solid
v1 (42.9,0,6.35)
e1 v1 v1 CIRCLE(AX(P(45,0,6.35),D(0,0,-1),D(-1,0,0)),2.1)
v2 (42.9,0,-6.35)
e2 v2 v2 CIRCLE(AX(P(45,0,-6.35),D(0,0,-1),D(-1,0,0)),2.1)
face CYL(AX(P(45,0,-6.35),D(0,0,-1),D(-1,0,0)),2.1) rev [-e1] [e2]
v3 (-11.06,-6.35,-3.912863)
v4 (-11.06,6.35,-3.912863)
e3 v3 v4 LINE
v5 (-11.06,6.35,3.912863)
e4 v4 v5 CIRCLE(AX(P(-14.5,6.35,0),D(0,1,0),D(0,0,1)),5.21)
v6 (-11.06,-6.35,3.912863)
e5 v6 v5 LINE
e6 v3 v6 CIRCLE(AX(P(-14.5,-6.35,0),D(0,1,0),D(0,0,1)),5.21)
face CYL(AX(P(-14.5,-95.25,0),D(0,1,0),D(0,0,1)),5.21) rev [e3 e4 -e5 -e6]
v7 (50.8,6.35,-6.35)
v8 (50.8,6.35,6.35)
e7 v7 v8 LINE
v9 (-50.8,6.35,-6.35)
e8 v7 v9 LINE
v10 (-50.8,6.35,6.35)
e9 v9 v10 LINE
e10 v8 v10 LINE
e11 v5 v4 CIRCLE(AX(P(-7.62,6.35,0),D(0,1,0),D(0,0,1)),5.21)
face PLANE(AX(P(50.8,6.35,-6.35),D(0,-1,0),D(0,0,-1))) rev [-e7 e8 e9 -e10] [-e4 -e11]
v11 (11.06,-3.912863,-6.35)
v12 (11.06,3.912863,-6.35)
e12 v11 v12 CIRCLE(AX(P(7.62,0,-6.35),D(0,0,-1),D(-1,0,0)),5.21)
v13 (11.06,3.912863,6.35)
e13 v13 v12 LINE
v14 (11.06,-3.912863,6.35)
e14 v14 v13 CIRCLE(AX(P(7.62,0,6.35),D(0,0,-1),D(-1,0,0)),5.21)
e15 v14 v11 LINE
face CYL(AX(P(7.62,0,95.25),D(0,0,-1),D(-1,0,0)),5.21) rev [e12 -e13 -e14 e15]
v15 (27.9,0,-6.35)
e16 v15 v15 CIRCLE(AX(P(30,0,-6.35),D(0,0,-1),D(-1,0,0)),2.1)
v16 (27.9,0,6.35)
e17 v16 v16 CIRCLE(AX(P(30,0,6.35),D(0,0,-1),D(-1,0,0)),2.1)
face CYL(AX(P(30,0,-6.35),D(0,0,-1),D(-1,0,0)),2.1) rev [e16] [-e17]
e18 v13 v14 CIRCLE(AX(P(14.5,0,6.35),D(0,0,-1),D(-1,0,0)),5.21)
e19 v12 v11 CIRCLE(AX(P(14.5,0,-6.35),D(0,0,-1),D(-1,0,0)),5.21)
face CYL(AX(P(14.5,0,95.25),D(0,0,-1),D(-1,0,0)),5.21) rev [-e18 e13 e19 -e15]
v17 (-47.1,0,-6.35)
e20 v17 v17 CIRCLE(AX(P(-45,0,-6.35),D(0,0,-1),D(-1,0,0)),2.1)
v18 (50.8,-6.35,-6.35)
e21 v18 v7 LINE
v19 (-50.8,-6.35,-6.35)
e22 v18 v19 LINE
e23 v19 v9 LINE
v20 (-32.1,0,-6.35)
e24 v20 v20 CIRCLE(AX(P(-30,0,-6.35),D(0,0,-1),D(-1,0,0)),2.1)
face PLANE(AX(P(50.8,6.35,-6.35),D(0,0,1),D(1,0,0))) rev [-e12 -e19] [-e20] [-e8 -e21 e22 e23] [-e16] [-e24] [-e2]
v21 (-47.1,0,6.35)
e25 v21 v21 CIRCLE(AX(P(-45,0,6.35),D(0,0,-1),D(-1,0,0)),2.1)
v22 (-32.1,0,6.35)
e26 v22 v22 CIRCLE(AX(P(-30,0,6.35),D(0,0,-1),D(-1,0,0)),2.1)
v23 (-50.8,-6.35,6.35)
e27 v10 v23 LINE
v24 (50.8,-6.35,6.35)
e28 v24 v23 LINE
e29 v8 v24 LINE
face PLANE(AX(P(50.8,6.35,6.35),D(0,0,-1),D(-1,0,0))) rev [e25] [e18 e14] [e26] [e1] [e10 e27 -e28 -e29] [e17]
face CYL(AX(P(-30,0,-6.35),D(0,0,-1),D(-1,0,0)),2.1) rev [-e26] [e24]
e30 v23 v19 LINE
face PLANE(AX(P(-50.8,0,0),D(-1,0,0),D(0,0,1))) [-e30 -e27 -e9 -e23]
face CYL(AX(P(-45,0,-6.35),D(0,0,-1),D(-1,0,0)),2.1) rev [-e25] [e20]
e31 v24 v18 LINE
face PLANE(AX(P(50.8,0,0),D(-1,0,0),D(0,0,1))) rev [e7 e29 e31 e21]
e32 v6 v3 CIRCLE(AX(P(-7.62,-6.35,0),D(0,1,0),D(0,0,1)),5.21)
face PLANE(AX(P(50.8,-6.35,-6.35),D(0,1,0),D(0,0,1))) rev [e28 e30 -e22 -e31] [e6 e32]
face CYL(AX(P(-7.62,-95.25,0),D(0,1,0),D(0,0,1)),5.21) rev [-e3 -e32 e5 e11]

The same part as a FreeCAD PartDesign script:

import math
import FreeCAD as App
import Part
import Sketcher
from FreeCAD import Vector
Q = App.Units.Quantity


def add_polygon(sketch, points):
    """Adds a closed chain of lines whose ends are joined by coincident constraints."""
    first, n = sketch.GeometryCount, len(points)
    for a, b in zip(points, points[1:] + points[:1]):
        sketch.addGeometry(Part.LineSegment(App.Vector(*a, 0), App.Vector(*b, 0)), False)
    for i in range(n):
        sketch.addConstraint(Sketcher.Constraint("Coincident", first + i, 2, first + (i + 1) % n, 1))

doc = App.newDocument("Part")
body = doc.addObject("PartDesign::Body", "Body")

# Sketch on YZ plane
sketch1 = body.newObject("Sketcher::SketchObject", "Sketch")
sketch1.AttachmentSupport = (doc.getObject("YZ_Plane"), [""])
sketch1.MapMode = "FlatFace"
add_polygon(sketch1, [(6.35, 6.35), (-6.35, 6.35), (-6.35, -6.35), (6.35, -6.35)])  # lines 0-3
sketch1.addConstraint([
    Sketcher.Constraint("Horizontal", 0),
    Sketcher.Constraint("Vertical", 1),
    Sketcher.Constraint("Horizontal", 2),
    Sketcher.Constraint("Vertical", 3),
    Sketcher.Constraint("Symmetric", 0, 2, 2, 2, -1, 1),
    Sketcher.Constraint("Equal", 2, 1),
    Sketcher.Constraint("DistanceX", 0, 2, 0, 1, Q("0.5 in")),
])
pad1 = body.newObject("PartDesign::Pad", "Pad")
pad1.Profile = sketch1
pad1.Length = Q("4 in")
pad1.Midplane = True

# Sketch on XZ plane
sketch2 = body.newObject("Sketcher::SketchObject", "Sketch001")
sketch2.AttachmentSupport = (doc.getObject("XZ_Plane"), [""])
sketch2.MapMode = "FlatFace"
sketch2.AttachmentOffset = App.Placement(Vector(0, 0, -0.25 * 25.4), App.Rotation())
sketch2.addGeometry([
    Part.ArcOfCircle(Part.Circle(Vector(-14.5, 0, 0), Vector(0, 0, 1), 5.21), math.radians(48.67963), math.radians(311.32037)),
    Part.ArcOfCircle(Part.Circle(Vector(-7.62, 0, 0), Vector(0, 0, 1), 5.21), math.radians(-131.32037), math.radians(131.32037)),
], False)
sketch2.addConstraint([
    Sketcher.Constraint("Coincident", 0, 1, 1, 2),
    Sketcher.Constraint("Coincident", 1, 1, 0, 2),
    Sketcher.Constraint("Equal", 0, 1),
    Sketcher.Constraint("Symmetric", 0, 1, 1, 1, -1),
    Sketcher.Constraint("DistanceX", 1, 3, -1, 1, Q("0.3 in")),
    Sketcher.Constraint("Radius", 0, Q("5.21 mm")),
    Sketcher.Constraint("DistanceX", 0, 3, -1, 1, Q("14.5 mm")),
])
pocket1 = body.newObject("PartDesign::Pocket", "Pocket")
pocket1.Profile = sketch2
pocket1.Length = Q("4 in")
pocket1.Reversed = True

# Sketch on XY plane
sketch3 = body.newObject("Sketcher::SketchObject", "Sketch002")
sketch3.AttachmentSupport = (doc.getObject("XY_Plane"), [""])
sketch3.MapMode = "FlatFace"
sketch3.AttachmentOffset = App.Placement(Vector(0, 0, -0.25 * 25.4), App.Rotation())
sketch3.addGeometry([
    Part.ArcOfCircle(Part.Circle(Vector(14.5, 0, 0), Vector(0, 0, 1), 5.21), math.radians(-131.32037), math.radians(131.32037)),
    Part.ArcOfCircle(Part.Circle(Vector(7.62, 0, 0), Vector(0, 0, 1), 5.21), math.radians(48.67963), math.radians(311.32037)),
], False)
sketch3.addConstraint([
    Sketcher.Constraint("Coincident", 0, 1, 1, 2),
    Sketcher.Constraint("Coincident", 1, 1, 0, 2),
    Sketcher.Constraint("Equal", 0, 1),
    Sketcher.Constraint("Symmetric", 0, 1, 1, 1, -1),
    Sketcher.Constraint("DistanceX", -1, 1, 1, 3, Q("0.3 in")),
    Sketcher.Constraint("Radius", 0, Q("5.21 mm")),
    Sketcher.Constraint("DistanceX", -1, 1, 0, 3, Q("14.5 mm")),
])
pocket2 = body.newObject("PartDesign::Pocket", "Pocket001")
pocket2.Profile = sketch3
pocket2.Length = Q("4 in")
pocket2.Reversed = True

# Sketch on XY plane
sketch4 = body.newObject("Sketcher::SketchObject", "Sketch003")
sketch4.AttachmentSupport = (doc.getObject("XY_Plane"), [""])
sketch4.MapMode = "FlatFace"
sketch4.AttachmentOffset = App.Placement(Vector(0, 0, -0.25 * 25.4), App.Rotation())
sketch4.addGeometry([
    Part.Circle(Vector(45, 0, 0), Vector(0, 0, 1), 2.1),
    Part.Circle(Vector(30, 0, 0), Vector(0, 0, 1), 2.1),
    Part.Circle(Vector(-30, 0, 0), Vector(0, 0, 1), 2.1),
    Part.Circle(Vector(-45, 0, 0), Vector(0, 0, 1), 2.1),
], False)
sketch4.addConstraint([
    Sketcher.Constraint("Equal", 0, 1),
    Sketcher.Constraint("Equal", 1, 2),
    Sketcher.Constraint("Equal", 2, 3),
    Sketcher.Constraint("Symmetric", 1, 3, 2, 3, -1, 1),
    Sketcher.Constraint("Symmetric", 0, 3, 3, 3, -1, 1),
    Sketcher.Constraint("PointOnObject", 0, 3, -1),
    Sketcher.Constraint("PointOnObject", 1, 3, -1),
    Sketcher.Constraint("Diameter", 0, Q("4.2 mm")),
    Sketcher.Constraint("DistanceX", -1, 1, 0, 3, Q("45 mm")),
    Sketcher.Constraint("DistanceX", -1, 1, 1, 3, Q("30 mm")),
])
doc.recompute()
hole = body.newObject("PartDesign::Hole", "Hole")
hole.Profile = sketch4
hole.ThreadType = "None"
hole.Diameter = 4.2
hole.DepthType = "Dimension"
hole.Depth = 14
hole.DrillPoint = "Angled"
hole.DrillPointAngle = 118
hole.Reversed = True

doc.recompute()
